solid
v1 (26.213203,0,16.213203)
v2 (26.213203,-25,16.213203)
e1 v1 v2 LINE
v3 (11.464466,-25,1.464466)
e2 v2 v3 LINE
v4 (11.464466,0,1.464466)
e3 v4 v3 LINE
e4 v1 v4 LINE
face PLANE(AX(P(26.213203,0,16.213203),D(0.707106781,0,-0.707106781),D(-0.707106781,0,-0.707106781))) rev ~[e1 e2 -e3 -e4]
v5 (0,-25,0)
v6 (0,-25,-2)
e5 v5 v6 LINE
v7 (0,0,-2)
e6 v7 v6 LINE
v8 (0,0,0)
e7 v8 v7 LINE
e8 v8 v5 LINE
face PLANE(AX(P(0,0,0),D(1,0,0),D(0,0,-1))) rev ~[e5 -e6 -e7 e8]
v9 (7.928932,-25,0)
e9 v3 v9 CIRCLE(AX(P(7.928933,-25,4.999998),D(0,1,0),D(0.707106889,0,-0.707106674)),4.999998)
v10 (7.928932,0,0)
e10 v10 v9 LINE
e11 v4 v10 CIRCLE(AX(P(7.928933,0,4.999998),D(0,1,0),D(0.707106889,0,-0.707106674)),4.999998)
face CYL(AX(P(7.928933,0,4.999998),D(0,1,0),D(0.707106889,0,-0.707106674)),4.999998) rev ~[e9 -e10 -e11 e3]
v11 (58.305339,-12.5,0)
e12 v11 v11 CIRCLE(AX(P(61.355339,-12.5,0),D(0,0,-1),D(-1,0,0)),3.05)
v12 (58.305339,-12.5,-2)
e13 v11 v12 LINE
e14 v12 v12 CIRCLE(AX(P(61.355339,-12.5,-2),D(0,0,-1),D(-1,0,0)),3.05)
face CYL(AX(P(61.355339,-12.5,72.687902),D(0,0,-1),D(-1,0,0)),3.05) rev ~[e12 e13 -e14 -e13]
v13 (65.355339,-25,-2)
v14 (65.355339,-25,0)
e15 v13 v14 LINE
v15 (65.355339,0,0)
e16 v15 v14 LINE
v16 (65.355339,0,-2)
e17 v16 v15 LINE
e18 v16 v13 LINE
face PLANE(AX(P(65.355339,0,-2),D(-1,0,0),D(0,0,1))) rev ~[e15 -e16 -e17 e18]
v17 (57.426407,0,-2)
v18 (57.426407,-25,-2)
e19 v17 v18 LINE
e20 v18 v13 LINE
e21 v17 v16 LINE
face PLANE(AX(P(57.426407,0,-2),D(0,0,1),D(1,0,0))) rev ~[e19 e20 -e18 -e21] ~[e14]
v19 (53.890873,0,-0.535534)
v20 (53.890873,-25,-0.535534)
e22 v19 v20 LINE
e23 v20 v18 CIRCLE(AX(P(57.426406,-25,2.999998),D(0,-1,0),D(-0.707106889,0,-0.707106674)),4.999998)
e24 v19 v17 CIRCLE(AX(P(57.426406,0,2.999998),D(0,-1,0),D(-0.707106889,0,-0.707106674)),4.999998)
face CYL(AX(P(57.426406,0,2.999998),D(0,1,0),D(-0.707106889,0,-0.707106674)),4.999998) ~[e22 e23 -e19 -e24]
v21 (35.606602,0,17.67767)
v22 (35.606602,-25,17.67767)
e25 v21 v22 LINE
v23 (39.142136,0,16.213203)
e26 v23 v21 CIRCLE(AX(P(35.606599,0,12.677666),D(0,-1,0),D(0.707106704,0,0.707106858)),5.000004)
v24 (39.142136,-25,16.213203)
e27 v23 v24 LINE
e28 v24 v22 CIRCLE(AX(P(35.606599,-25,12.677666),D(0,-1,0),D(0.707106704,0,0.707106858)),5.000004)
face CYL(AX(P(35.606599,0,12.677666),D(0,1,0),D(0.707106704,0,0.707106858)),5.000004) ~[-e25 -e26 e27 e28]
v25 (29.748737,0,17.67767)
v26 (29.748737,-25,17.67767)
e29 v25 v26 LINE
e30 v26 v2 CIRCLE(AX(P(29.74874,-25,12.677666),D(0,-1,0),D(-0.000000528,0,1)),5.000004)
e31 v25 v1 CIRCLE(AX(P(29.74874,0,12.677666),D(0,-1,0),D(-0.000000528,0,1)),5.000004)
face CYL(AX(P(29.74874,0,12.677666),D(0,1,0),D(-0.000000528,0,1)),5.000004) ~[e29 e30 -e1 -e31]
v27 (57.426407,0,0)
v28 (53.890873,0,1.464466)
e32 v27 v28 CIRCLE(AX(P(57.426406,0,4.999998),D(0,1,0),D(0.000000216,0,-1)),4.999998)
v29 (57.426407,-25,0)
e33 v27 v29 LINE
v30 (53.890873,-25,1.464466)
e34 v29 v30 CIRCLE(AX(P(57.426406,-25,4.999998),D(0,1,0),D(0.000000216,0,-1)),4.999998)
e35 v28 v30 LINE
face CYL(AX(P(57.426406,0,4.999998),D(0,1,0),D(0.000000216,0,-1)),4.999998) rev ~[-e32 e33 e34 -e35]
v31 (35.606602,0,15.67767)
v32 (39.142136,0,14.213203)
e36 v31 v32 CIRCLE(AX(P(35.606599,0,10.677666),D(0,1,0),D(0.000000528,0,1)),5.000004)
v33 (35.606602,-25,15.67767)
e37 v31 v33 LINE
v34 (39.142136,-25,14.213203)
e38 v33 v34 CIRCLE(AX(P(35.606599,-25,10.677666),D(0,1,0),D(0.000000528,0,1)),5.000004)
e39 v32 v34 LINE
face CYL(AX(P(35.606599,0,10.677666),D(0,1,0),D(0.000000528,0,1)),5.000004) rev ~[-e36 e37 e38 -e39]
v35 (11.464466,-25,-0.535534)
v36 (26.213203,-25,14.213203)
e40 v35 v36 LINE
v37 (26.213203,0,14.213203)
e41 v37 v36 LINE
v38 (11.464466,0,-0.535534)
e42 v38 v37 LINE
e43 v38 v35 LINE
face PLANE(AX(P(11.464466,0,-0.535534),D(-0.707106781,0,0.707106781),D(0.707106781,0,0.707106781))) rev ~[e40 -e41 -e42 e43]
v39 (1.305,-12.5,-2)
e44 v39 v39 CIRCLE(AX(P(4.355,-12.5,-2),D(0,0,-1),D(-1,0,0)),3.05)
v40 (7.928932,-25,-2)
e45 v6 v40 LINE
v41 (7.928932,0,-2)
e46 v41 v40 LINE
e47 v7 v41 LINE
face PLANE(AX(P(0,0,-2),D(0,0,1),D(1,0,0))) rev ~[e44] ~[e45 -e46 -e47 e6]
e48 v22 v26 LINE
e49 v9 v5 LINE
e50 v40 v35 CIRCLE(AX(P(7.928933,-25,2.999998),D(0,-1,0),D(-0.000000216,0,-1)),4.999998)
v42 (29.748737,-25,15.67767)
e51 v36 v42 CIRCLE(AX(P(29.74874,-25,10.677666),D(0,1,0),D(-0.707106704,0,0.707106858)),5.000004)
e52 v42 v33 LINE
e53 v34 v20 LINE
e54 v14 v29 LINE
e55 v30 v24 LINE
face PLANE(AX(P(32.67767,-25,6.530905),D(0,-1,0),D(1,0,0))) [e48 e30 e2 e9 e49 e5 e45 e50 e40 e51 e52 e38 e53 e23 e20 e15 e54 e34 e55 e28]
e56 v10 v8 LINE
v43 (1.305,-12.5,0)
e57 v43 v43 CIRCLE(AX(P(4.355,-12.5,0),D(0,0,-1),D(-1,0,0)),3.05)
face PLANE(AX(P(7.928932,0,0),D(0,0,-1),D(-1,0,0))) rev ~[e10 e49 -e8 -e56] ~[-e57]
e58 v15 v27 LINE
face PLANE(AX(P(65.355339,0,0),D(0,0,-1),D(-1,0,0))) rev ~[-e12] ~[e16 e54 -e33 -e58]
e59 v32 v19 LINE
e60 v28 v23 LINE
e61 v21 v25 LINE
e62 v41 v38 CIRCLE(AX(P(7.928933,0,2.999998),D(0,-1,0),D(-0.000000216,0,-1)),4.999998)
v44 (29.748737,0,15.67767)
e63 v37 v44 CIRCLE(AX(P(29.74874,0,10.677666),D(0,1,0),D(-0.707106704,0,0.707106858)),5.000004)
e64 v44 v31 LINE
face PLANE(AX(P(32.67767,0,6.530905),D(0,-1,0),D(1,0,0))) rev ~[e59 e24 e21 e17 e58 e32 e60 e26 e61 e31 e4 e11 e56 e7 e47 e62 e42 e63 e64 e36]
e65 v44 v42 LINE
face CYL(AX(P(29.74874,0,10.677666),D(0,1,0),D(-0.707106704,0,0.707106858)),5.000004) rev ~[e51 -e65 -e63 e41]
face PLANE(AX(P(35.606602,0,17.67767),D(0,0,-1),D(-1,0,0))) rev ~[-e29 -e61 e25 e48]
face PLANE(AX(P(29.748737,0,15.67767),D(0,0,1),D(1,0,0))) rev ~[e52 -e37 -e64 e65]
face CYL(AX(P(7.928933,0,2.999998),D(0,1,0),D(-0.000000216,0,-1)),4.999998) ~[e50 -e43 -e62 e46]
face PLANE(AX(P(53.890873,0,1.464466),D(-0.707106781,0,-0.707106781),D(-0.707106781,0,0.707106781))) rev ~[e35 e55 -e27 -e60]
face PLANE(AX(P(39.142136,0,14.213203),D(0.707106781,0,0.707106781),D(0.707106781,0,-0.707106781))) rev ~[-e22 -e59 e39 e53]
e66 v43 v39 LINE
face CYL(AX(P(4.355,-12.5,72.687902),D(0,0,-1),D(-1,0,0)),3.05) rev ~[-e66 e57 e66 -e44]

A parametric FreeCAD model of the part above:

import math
import FreeCAD as App
import Part
import Sketcher

doc = App.newDocument("Part")
body = doc.addObject("PartDesign::Body", "Body")

# Sketch on XZ plane
sketch1 = body.newObject("Sketcher::SketchObject", "Sketch")
sketch1.AttachmentSupport = (doc.getObject("XZ_Plane"), [""])
sketch1.MapMode = "FlatFace"
sketch1.addGeometry([
    Part.LineSegment(App.Vector(7.9, 0, 0), App.Vector(0, 0, 0)),  # 0
    Part.LineSegment(App.Vector(0, 0, 0), App.Vector(0, -2, 0)),  # 1
    Part.LineSegment(App.Vector(0, -2, 0), App.Vector(7.9, -2, 0)),  # 2
    Part.ArcOfCircle(Part.Circle(App.Vector(7.9, 3, 0), App.Vector(0, 0, 1), 5), math.radians(-90), math.radians(-45)),  # 3
    Part.LineSegment(App.Vector(11.5, -0.5, 0), App.Vector(26.2, 14.2, 0)),  # 4
    Part.ArcOfCircle(Part.Circle(App.Vector(29.7, 10.7, 0), App.Vector(0, 0, 1), 5), math.radians(90), math.radians(135)),  # 5
    Part.LineSegment(App.Vector(29.7, 15.7, 0), App.Vector(35.6, 15.7, 0)),  # 6
    Part.ArcOfCircle(Part.Circle(App.Vector(35.6, 10.7, 0), App.Vector(0, 0, 1), 5), math.radians(45), math.radians(90)),  # 7
    Part.LineSegment(App.Vector(39.1, 14.2, 0), App.Vector(53.9, -0.5, 0)),  # 8
    Part.ArcOfCircle(Part.Circle(App.Vector(57.4, 3, 0), App.Vector(0, 0, 1), 5), math.radians(-135), math.radians(-90)),  # 9
    Part.LineSegment(App.Vector(57.4, -2, 0), App.Vector(65.4, -2, 0)),  # 10
    Part.LineSegment(App.Vector(65.4, -2, 0), App.Vector(65.4, 0, 0)),  # 11
    Part.LineSegment(App.Vector(65.4, 0, 0), App.Vector(57.4, 0, 0)),  # 12
    Part.ArcOfCircle(Part.Circle(App.Vector(57.4, 5, 0), App.Vector(0, 0, 1), 5), math.radians(-135), math.radians(-90)),  # 13
    Part.LineSegment(App.Vector(53.9, 1.5, 0), App.Vector(39.1, 16.2, 0)),  # 14
    Part.ArcOfCircle(Part.Circle(App.Vector(35.6, 12.7, 0), App.Vector(0, 0, 1), 5), math.radians(45), math.radians(90)),  # 15
    Part.LineSegment(App.Vector(35.6, 17.7, 0), App.Vector(29.7, 17.7, 0)),  # 16
    Part.ArcOfCircle(Part.Circle(App.Vector(29.7, 12.7, 0), App.Vector(0, 0, 1), 5), math.radians(90), math.radians(135)),  # 17
    Part.LineSegment(App.Vector(26.2, 16.2, 0), App.Vector(11.5, 1.5, 0)),  # 18
    Part.ArcOfCircle(Part.Circle(App.Vector(7.9, 5, 0), App.Vector(0, 0, 1), 5), math.radians(-90), math.radians(-45)),  # 19
], False)
sketch1.addConstraint([
    Sketcher.Constraint("Coincident", 0, 2, 1, 1),
    Sketcher.Constraint("Coincident", 1, 2, 2, 1),
    Sketcher.Constraint("Tangent", 2, 2, 3, 1),
    Sketcher.Constraint("Tangent", 3, 2, 4, 1),
    Sketcher.Constraint("Tangent", 4, 2, 5, 2),
    Sketcher.Constraint("Tangent", 5, 1, 6, 1),
    Sketcher.Constraint("Tangent", 6, 2, 7, 2),
    Sketcher.Constraint("Tangent", 7, 1, 8, 1),
    Sketcher.Constraint("Tangent", 8, 2, 9, 1),
    Sketcher.Constraint("Tangent", 9, 2, 10, 1),
    Sketcher.Constraint("Coincident", 10, 2, 11, 1),
    Sketcher.Constraint("Coincident", 11, 2, 12, 1),
    Sketcher.Constraint("Tangent", 12, 2, 13, 2),
    Sketcher.Constraint("Tangent", 13, 1, 14, 1),
    Sketcher.Constraint("Tangent", 14, 2, 15, 1),
    Sketcher.Constraint("Tangent", 15, 2, 16, 1),
    Sketcher.Constraint("Tangent", 16, 2, 17, 1),
    Sketcher.Constraint("Tangent", 17, 2, 18, 1),
    Sketcher.Constraint("Tangent", 18, 2, 19, 2),
    Sketcher.Constraint("Tangent", 19, 1, 0, 1),
    Sketcher.Constraint("Horizontal", 0),
    Sketcher.Constraint("Vertical", 1),
    Sketcher.Constraint("Horizontal", 2),
    Sketcher.Constraint("Horizontal", 6),
    Sketcher.Constraint("Horizontal", 10),
    Sketcher.Constraint("Vertical", 11),
    Sketcher.Constraint("Horizontal", 12),
    Sketcher.Constraint("Horizontal", 16),
    Sketcher.Constraint("Coincident", 0, 2, -1, 1),
    Sketcher.Constraint("Equal", 5, 7),
    Sketcher.Constraint("Equal", 3, 9),
    Sketcher.Constraint("Equal", 9, 13),
    Sketcher.Constraint("Equal", 7, 15),
    Sketcher.Constraint("Equal", 15, 17),
    Sketcher.Constraint("Equal", 13, 19),
    Sketcher.Constraint("PointOnObject", 11, 2, -1),
    Sketcher.Constraint("Perpendicular", 4, 8),
    Sketcher.Constraint("Parallel", 8, 14),
    Sketcher.Constraint("Perpendicular", 14, 18),
    Sketcher.Constraint("Horizontal", 3, 3, 9, 3),
    Sketcher.Constraint("Horizontal", 4, 2, 7, 1),
    Sketcher.Constraint("Vertical", 9, 3, 13, 3),
    Sketcher.Constraint("Vertical", 7, 3, 15, 3),
    Sketcher.Constraint("Vertical", 5, 3, 17, 3),
    Sketcher.Constraint("Equal", 2, 10),
    Sketcher.Constraint("DistanceY", 1, 2, 1, 1, 2.0),
    Sketcher.Constraint("Radius", 3, 4.999998),
    Sketcher.Constraint("Radius", 5, 5.000004),
    Sketcher.Constraint("DistanceX", 0, 2, 0, 1, 7.928932),
    Sketcher.Constraint("DistanceX", -1, 1, 7, 3, 35.606599),
    Sketcher.Constraint("DistanceX", 5, 1, 7, 1, 9.393399),
])
pad1 = body.newObject("PartDesign::Pad", "Pad")
pad1.Profile = sketch1
pad1.Length = 25

# Sketch on XY plane
sketch2 = body.newObject("Sketcher::SketchObject", "Sketch001")
sketch2.AttachmentSupport = (doc.getObject("XY_Plane"), [""])
sketch2.MapMode = "FlatFace"
sketch2.addGeometry([
    Part.Circle(App.Vector(4.4, -12.5, 0), App.Vector(0, 0, 1), 3),
    Part.Circle(App.Vector(61.4, -12.5, 0), App.Vector(0, 0, 1), 3),
], False)
sketch2.addConstraint([
    Sketcher.Constraint("Equal", 0, 1),
    Sketcher.Constraint("Horizontal", 0, 3, 1, 3),
    Sketcher.Constraint("Diameter", 0, 6.1),
    Sketcher.Constraint("DistanceY", 0, 3, -1, 1, 12.5),
    Sketcher.Constraint("DistanceX", -1, 1, 0, 3, 4.355),
    Sketcher.Constraint("DistanceX", -1, 1, 1, 3, 61.355339),
])
doc.recompute()
hole = body.newObject("PartDesign::Hole", "Hole")
hole.Profile = sketch2
hole.ThreadType = "None"
hole.Diameter = 6.1
hole.DepthType = "ThroughAll"

doc.recompute()
